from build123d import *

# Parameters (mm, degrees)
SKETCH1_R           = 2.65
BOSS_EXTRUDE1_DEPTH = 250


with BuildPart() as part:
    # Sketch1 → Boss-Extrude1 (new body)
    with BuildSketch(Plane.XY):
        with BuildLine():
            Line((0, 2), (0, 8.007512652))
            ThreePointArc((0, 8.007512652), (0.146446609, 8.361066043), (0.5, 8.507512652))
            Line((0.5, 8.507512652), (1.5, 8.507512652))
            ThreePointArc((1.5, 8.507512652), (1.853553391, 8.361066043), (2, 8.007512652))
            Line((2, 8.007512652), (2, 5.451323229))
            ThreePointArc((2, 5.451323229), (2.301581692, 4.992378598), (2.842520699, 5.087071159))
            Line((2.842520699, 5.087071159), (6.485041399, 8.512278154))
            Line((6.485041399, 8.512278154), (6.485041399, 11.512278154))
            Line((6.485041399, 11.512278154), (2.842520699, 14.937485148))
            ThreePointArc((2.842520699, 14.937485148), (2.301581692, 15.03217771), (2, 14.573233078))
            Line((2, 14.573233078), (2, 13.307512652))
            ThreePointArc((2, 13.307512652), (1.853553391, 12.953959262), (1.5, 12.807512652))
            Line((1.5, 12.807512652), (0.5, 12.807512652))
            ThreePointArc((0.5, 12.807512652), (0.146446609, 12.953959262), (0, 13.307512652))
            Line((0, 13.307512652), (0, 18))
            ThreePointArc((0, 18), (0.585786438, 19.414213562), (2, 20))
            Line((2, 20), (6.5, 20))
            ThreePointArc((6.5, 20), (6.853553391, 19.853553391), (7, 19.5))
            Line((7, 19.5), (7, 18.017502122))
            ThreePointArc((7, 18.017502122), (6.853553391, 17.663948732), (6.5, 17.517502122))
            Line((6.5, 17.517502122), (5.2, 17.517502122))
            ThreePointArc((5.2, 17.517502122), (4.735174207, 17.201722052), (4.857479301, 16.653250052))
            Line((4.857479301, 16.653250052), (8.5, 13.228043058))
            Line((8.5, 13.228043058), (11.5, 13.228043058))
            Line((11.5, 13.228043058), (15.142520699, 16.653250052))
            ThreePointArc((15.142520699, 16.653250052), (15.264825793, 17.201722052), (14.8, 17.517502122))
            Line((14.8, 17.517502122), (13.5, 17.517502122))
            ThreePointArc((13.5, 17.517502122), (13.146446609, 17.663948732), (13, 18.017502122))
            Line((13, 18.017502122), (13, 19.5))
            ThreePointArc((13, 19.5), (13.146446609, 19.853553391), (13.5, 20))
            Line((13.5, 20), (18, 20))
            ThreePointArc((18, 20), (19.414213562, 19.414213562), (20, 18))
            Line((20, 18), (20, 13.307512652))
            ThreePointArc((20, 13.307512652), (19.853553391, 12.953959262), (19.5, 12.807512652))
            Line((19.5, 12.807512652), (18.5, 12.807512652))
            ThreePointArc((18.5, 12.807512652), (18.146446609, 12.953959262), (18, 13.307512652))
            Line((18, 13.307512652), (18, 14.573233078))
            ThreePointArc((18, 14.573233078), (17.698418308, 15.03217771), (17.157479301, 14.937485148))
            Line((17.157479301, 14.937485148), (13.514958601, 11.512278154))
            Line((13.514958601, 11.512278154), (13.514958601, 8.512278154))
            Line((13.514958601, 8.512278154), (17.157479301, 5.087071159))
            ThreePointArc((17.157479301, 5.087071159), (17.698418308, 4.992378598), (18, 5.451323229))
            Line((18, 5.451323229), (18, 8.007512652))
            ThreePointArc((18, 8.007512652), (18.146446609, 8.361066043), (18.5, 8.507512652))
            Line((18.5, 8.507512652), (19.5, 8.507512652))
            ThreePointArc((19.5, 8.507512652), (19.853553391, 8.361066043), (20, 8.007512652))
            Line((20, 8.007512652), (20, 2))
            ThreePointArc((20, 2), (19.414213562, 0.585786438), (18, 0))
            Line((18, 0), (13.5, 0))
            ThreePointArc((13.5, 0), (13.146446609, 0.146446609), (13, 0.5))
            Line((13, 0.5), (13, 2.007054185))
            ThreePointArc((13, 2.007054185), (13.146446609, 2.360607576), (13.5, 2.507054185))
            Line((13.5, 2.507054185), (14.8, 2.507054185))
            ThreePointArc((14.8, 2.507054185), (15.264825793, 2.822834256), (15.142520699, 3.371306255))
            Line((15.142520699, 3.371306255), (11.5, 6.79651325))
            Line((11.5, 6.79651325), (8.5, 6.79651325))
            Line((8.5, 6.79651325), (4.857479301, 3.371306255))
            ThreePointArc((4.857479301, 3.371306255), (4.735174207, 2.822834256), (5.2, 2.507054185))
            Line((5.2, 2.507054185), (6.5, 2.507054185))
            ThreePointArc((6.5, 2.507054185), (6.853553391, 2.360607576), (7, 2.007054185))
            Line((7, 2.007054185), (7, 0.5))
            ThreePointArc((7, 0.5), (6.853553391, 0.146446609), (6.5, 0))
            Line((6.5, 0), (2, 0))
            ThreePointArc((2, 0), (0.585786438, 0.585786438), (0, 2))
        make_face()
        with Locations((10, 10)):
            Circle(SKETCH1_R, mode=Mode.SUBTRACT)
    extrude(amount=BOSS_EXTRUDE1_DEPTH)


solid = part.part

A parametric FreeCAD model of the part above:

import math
import FreeCAD as App
import Part
import Sketcher
from FreeCAD import Vector
Q = App.Units.Quantity

doc = App.newDocument("Part")
body = doc.addObject("PartDesign::Body", "Body")

sketch1 = doc.addObject("Sketcher::SketchObject", "Sketch")
body.addObject(sketch1)
sketch1.AttachmentSupport = (doc.XY_Plane, [""])
sketch1.MapMode = "FlatFace"
sketch1.addGeometry([
    Part.LineSegment(Vector(0, 8.007513, 0), Vector(0, 2, 0)),
    Part.ArcOfCircle(Part.Circle(Vector(2, 2, 0), Vector(0, 0, 1), 2), math.radians(-180), math.radians(-90)),
    Part.LineSegment(Vector(2, 0, 0), Vector(6.5, 0, 0)),
    Part.ArcOfCircle(Part.Circle(Vector(6.5, 0.5, 0), Vector(0, 0, 1), 0.5), math.radians(-90), math.radians(0)),
    Part.LineSegment(Vector(7, 0.5, 0), Vector(7, 2.007054, 0)),
    Part.ArcOfCircle(Part.Circle(Vector(6.5, 2.007054, 0), Vector(0, 0, 1), 0.5), math.radians(0), math.radians(90)),
    Part.LineSegment(Vector(6.5, 2.507054, 0), Vector(5.2, 2.507054, 0)),
    Part.ArcOfCircle(Part.Circle(Vector(5.2, 3.007054, 0), Vector(0, 0, 1), 0.5), math.radians(133.238863), math.radians(270)),
    Part.LineSegment(Vector(4.857479, 3.371306, 0), Vector(8.5, 6.796513, 0)),
    Part.LineSegment(Vector(8.5, 6.796513, 0), Vector(11.5, 6.796513, 0)),
    Part.LineSegment(Vector(11.5, 6.796513, 0), Vector(15.142521, 3.371306, 0)),
    Part.ArcOfCircle(Part.Circle(Vector(14.8, 3.007054, 0), Vector(0, 0, 1), 0.5), math.radians(-90), math.radians(46.761137)),
    Part.LineSegment(Vector(14.8, 2.507054, 0), Vector(13.5, 2.507054, 0)),
    Part.ArcOfCircle(Part.Circle(Vector(13.5, 2.007054, 0), Vector(0, 0, 1), 0.5), math.radians(90), math.radians(180)),
    Part.LineSegment(Vector(13, 2.007054, 0), Vector(13, 0.5, 0)),
    Part.ArcOfCircle(Part.Circle(Vector(13.5, 0.5, 0), Vector(0, 0, 1), 0.5), math.radians(180), math.radians(270)),
    Part.LineSegment(Vector(13.5, 0, 0), Vector(18, 0, 0)),
    Part.ArcOfCircle(Part.Circle(Vector(18, 2, 0), Vector(0, 0, 1), 2), math.radians(-90), math.radians(0)),
    Part.LineSegment(Vector(20, 2, 0), Vector(20, 8.007513, 0)),
    Part.ArcOfCircle(Part.Circle(Vector(19.5, 8.007513, 0), Vector(0, 0, 1), 0.5), math.radians(0), math.radians(90)),
    Part.LineSegment(Vector(19.5, 8.507513, 0), Vector(18.5, 8.507513, 0)),
    Part.ArcOfCircle(Part.Circle(Vector(18.5, 8.007513, 0), Vector(0, 0, 1), 0.5), math.radians(90), math.radians(180)),
    Part.LineSegment(Vector(18, 8.007513, 0), Vector(18, 5.451323, 0)),
    Part.ArcOfCircle(Part.Circle(Vector(17.5, 5.451323, 0), Vector(0, 0, 1), 0.5), math.radians(-133.238863), math.radians(0)),
    Part.LineSegment(Vector(17.157479, 5.087071, 0), Vector(13.514959, 8.512278, 0)),
    Part.LineSegment(Vector(13.514959, 8.512278, 0), Vector(13.514959, 11.512278, 0)),
    Part.LineSegment(Vector(13.514959, 11.512278, 0), Vector(17.157479, 14.937485, 0)),
    Part.ArcOfCircle(Part.Circle(Vector(17.5, 14.573233, 0), Vector(0, 0, 1), 0.5), math.radians(0), math.radians(133.238863)),
    Part.LineSegment(Vector(18, 14.573233, 0), Vector(18, 13.307513, 0)),
    Part.ArcOfCircle(Part.Circle(Vector(18.5, 13.307513, 0), Vector(0, 0, 1), 0.5), math.radians(180), math.radians(270)),
    Part.LineSegment(Vector(18.5, 12.807513, 0), Vector(19.5, 12.807513, 0)),
    Part.ArcOfCircle(Part.Circle(Vector(19.5, 13.307513, 0), Vector(0, 0, 1), 0.5), math.radians(-90), math.radians(0)),
    Part.LineSegment(Vector(20, 13.307513, 0), Vector(20, 18, 0)),
    Part.ArcOfCircle(Part.Circle(Vector(18, 18, 0), Vector(0, 0, 1), 2), math.radians(0), math.radians(90)),
    Part.LineSegment(Vector(18, 20, 0), Vector(13.5, 20, 0)),
    Part.ArcOfCircle(Part.Circle(Vector(13.5, 19.5, 0), Vector(0, 0, 1), 0.5), math.radians(90), math.radians(180)),
    Part.LineSegment(Vector(13, 19.5, 0), Vector(13, 18.017502, 0)),
    Part.ArcOfCircle(Part.Circle(Vector(13.5, 18.017502, 0), Vector(0, 0, 1), 0.5), math.radians(180), math.radians(270)),
    Part.LineSegment(Vector(13.5, 17.517502, 0), Vector(14.8, 17.517502, 0)),
    Part.ArcOfCircle(Part.Circle(Vector(14.8, 17.017502, 0), Vector(0, 0, 1), 0.5), math.radians(-46.761137), math.radians(90)),
    Part.LineSegment(Vector(15.142521, 16.65325, 0), Vector(11.5, 13.228043, 0)),
    Part.LineSegment(Vector(11.5, 13.228043, 0), Vector(8.5, 13.228043, 0)),
    Part.LineSegment(Vector(8.5, 13.228043, 0), Vector(4.857479, 16.65325, 0)),
    Part.ArcOfCircle(Part.Circle(Vector(5.2, 17.017502, 0), Vector(0, 0, 1), 0.5), math.radians(90), math.radians(226.761137)),
    Part.LineSegment(Vector(5.2, 17.517502, 0), Vector(6.5, 17.517502, 0)),
    Part.ArcOfCircle(Part.Circle(Vector(6.5, 18.017502, 0), Vector(0, 0, 1), 0.5), math.radians(-90), math.radians(0)),
    Part.LineSegment(Vector(7, 18.017502, 0), Vector(7, 19.5, 0)),
    Part.ArcOfCircle(Part.Circle(Vector(6.5, 19.5, 0), Vector(0, 0, 1), 0.5), math.radians(0), math.radians(90)),
    Part.LineSegment(Vector(6.5, 20, 0), Vector(2, 20, 0)),
    Part.ArcOfCircle(Part.Circle(Vector(2, 18, 0), Vector(0, 0, 1), 2), math.radians(90), math.radians(180)),
    Part.LineSegment(Vector(0, 18, 0), Vector(0, 13.307513, 0)),
    Part.ArcOfCircle(Part.Circle(Vector(0.5, 13.307513, 0), Vector(0, 0, 1), 0.5), math.radians(180), math.radians(270)),
    Part.LineSegment(Vector(0.5, 12.807513, 0), Vector(1.5, 12.807513, 0)),
    Part.ArcOfCircle(Part.Circle(Vector(1.5, 13.307513, 0), Vector(0, 0, 1), 0.5), math.radians(-90), math.radians(0)),
    Part.LineSegment(Vector(2, 13.307513, 0), Vector(2, 14.573233, 0)),
    Part.ArcOfCircle(Part.Circle(Vector(2.5, 14.573233, 0), Vector(0, 0, 1), 0.5), math.radians(46.761137), math.radians(180)),
    Part.LineSegment(Vector(2.842521, 14.937485, 0), Vector(6.485041, 11.512278, 0)),
    Part.LineSegment(Vector(6.485041, 11.512278, 0), Vector(6.485041, 8.512278, 0)),
    Part.LineSegment(Vector(6.485041, 8.512278, 0), Vector(2.842521, 5.087071, 0)),
    Part.ArcOfCircle(Part.Circle(Vector(2.5, 5.451323, 0), Vector(0, 0, 1), 0.5), math.radians(-180), math.radians(-46.761137)),
    Part.LineSegment(Vector(2, 5.451323, 0), Vector(2, 8.007513, 0)),
    Part.ArcOfCircle(Part.Circle(Vector(1.5, 8.007513, 0), Vector(0, 0, 1), 0.5), math.radians(0), math.radians(90)),
    Part.LineSegment(Vector(1.5, 8.507513, 0), Vector(0.5, 8.507513, 0)),
    Part.ArcOfCircle(Part.Circle(Vector(0.5, 8.007513, 0), Vector(0, 0, 1), 0.5), math.radians(90), math.radians(180)),
    Part.Circle(Vector(10, 10, 0), Vector(0, 0, 1), 2.65),
], False)
sketch1.addConstraint([
    Sketcher.Constraint("Tangent", 0, 2, 1, 1),
    Sketcher.Constraint("Tangent", 1, 2, 2, 1),
    Sketcher.Constraint("Tangent", 2, 2, 3, 1),
    Sketcher.Constraint("Tangent", 3, 2, 4, 1),
    Sketcher.Constraint("Tangent", 4, 2, 5, 1),
    Sketcher.Constraint("Tangent", 5, 2, 6, 1),
    Sketcher.Constraint("Tangent", 6, 2, 7, 2),
    Sketcher.Constraint("Tangent", 7, 1, 8, 1),
    Sketcher.Constraint("Coincident", 8, 2, 9, 1),
    Sketcher.Constraint("Coincident", 9, 2, 10, 1),
    Sketcher.Constraint("Tangent", 10, 2, 11, 2),
    Sketcher.Constraint("Tangent", 11, 1, 12, 1),
    Sketcher.Constraint("Tangent", 12, 2, 13, 1),
    Sketcher.Constraint("Tangent", 13, 2, 14, 1),
    Sketcher.Constraint("Tangent", 14, 2, 15, 1),
    Sketcher.Constraint("Tangent", 15, 2, 16, 1),
    Sketcher.Constraint("Tangent", 16, 2, 17, 1),
    Sketcher.Constraint("Tangent", 17, 2, 18, 1),
    Sketcher.Constraint("Tangent", 18, 2, 19, 1),
    Sketcher.Constraint("Tangent", 19, 2, 20, 1),
    Sketcher.Constraint("Tangent", 20, 2, 21, 1),
    Sketcher.Constraint("Tangent", 21, 2, 22, 1),
    Sketcher.Constraint("Tangent", 22, 2, 23, 2),
    Sketcher.Constraint("Tangent", 23, 1, 24, 1),
    Sketcher.Constraint("Coincident", 24, 2, 25, 1),
    Sketcher.Constraint("Coincident", 25, 2, 26, 1),
    Sketcher.Constraint("Tangent", 26, 2, 27, 2),
    Sketcher.Constraint("Tangent", 27, 1, 28, 1),
    Sketcher.Constraint("Tangent", 28, 2, 29, 1),
    Sketcher.Constraint("Tangent", 29, 2, 30, 1),
    Sketcher.Constraint("Tangent", 30, 2, 31, 1),
    Sketcher.Constraint("Tangent", 31, 2, 32, 1),
    Sketcher.Constraint("Tangent", 32, 2, 33, 1),
    Sketcher.Constraint("Tangent", 33, 2, 34, 1),
    Sketcher.Constraint("Tangent", 34, 2, 35, 1),
    Sketcher.Constraint("Tangent", 35, 2, 36, 1),
    Sketcher.Constraint("Tangent", 36, 2, 37, 1),
    Sketcher.Constraint("Tangent", 37, 2, 38, 1),
    Sketcher.Constraint("Tangent", 38, 2, 39, 2),
    Sketcher.Constraint("Tangent", 39, 1, 40, 1),
    Sketcher.Constraint("Coincident", 40, 2, 41, 1),
    Sketcher.Constraint("Coincident", 41, 2, 42, 1),
    Sketcher.Constraint("Tangent", 42, 2, 43, 2),
    Sketcher.Constraint("Tangent", 43, 1, 44, 1),
    Sketcher.Constraint("Tangent", 44, 2, 45, 1),
    Sketcher.Constraint("Tangent", 45, 2, 46, 1),
    Sketcher.Constraint("Tangent", 46, 2, 47, 1),
    Sketcher.Constraint("Tangent", 47, 2, 48, 1),
    Sketcher.Constraint("Tangent", 48, 2, 49, 1),
    Sketcher.Constraint("Tangent", 49, 2, 50, 1),
    Sketcher.Constraint("Tangent", 50, 2, 51, 1),
    Sketcher.Constraint("Tangent", 51, 2, 52, 1),
    Sketcher.Constraint("Tangent", 52, 2, 53, 1),
    Sketcher.Constraint("Tangent", 53, 2, 54, 1),
    Sketcher.Constraint("Tangent", 54, 2, 55, 2),
    Sketcher.Constraint("Tangent", 55, 1, 56, 1),
    Sketcher.Constraint("Coincident", 56, 2, 57, 1),
    Sketcher.Constraint("Coincident", 57, 2, 58, 1),
    Sketcher.Constraint("Tangent", 58, 2, 59, 2),
    Sketcher.Constraint("Tangent", 59, 1, 60, 1),
    Sketcher.Constraint("Tangent", 60, 2, 61, 1),
    Sketcher.Constraint("Tangent", 61, 2, 62, 1),
    Sketcher.Constraint("Tangent", 62, 2, 63, 1),
    Sketcher.Constraint("Tangent", 63, 2, 0, 1),
    Sketcher.Constraint("Vertical", 0),
    Sketcher.Constraint("Horizontal", 2),
    Sketcher.Constraint("Vertical", 4),
    Sketcher.Constraint("Horizontal", 6),
    Sketcher.Constraint("Horizontal", 9),
    Sketcher.Constraint("Horizontal", 12),
    Sketcher.Constraint("Vertical", 14),
    Sketcher.Constraint("Horizontal", 16),
    Sketcher.Constraint("Vertical", 18),
    Sketcher.Constraint("Horizontal", 20),
    Sketcher.Constraint("Vertical", 22),
    Sketcher.Constraint("Vertical", 25),
    Sketcher.Constraint("Vertical", 28),
    Sketcher.Constraint("Horizontal", 30),
    Sketcher.Constraint("Vertical", 32),
    Sketcher.Constraint("Horizontal", 34),
    Sketcher.Constraint("Vertical", 36),
    Sketcher.Constraint("Horizontal", 38),
    Sketcher.Constraint("Horizontal", 41),
    Sketcher.Constraint("Horizontal", 44),
    Sketcher.Constraint("Vertical", 46),
    Sketcher.Constraint("Horizontal", 48),
    Sketcher.Constraint("Vertical", 50),
    Sketcher.Constraint("Horizontal", 52),
    Sketcher.Constraint("Vertical", 54),
    Sketcher.Constraint("Vertical", 57),
    Sketcher.Constraint("Vertical", 60),
    Sketcher.Constraint("Horizontal", 62),
    Sketcher.Constraint("Equal", 3, 5),
    Sketcher.Constraint("Equal", 5, 7),
    Sketcher.Constraint("Equal", 7, 11),
    Sketcher.Constraint("Equal", 11, 13),
    Sketcher.Constraint("Equal", 13, 15),
    Sketcher.Constraint("Equal", 1, 17),
    Sketcher.Constraint("Equal", 15, 19),
    Sketcher.Constraint("Equal", 19, 21),
    Sketcher.Constraint("Equal", 21, 23),
    Sketcher.Constraint("Equal", 23, 27),
    Sketcher.Constraint("Equal", 27, 29),
    Sketcher.Constraint("Equal", 29, 31),
    Sketcher.Constraint("Equal", 17, 33),
    Sketcher.Constraint("Equal", 31, 35),
    Sketcher.Constraint("Equal", 35, 37),
    Sketcher.Constraint("Equal", 37, 39),
    Sketcher.Constraint("Equal", 39, 43),
    Sketcher.Constraint("Equal", 43, 45),
    Sketcher.Constraint("Equal", 45, 47),
    Sketcher.Constraint("Equal", 33, 49),
    Sketcher.Constraint("Equal", 47, 51),
    Sketcher.Constraint("Equal", 51, 53),
    Sketcher.Constraint("Equal", 53, 55),
    Sketcher.Constraint("Equal", 55, 59),
    Sketcher.Constraint("Equal", 59, 61),
    Sketcher.Constraint("Equal", 61, 63),
    Sketcher.Constraint("PointOnObject", 0, 2, -2),
    Sketcher.Constraint("PointOnObject", 1, 2, -1),
    Sketcher.Constraint("PointOnObject", 15, 2, -1),
    Sketcher.Constraint("PointOnObject", 49, 2, -2),
    Sketcher.Constraint("Parallel", 10, 24),
    Sketcher.Constraint("Parallel", 8, 26),
    Sketcher.Constraint("Parallel", 26, 40),
    Sketcher.Constraint("Parallel", 24, 42),
    Sketcher.Constraint("Parallel", 42, 56),
    Sketcher.Constraint("Parallel", 40, 58),
    Sketcher.Constraint("Horizontal", 7, 3, 11, 3),
    Sketcher.Constraint("Horizontal", 39, 3, 43, 3),
    Sketcher.Constraint("Horizontal", 35, 3, 47, 3),
    Sketcher.Constraint("Horizontal", 31, 3, 51, 3),
    Sketcher.Constraint("Horizontal", 27, 3, 55, 3),
    Sketcher.Constraint("Horizontal", 23, 3, 59, 3),
    Sketcher.Constraint("Horizontal", 21, 3, 61, 3),
    Sketcher.Constraint("Horizontal", 7, 1, 10, 2),
    Sketcher.Constraint("Horizontal", 25, 2, 56, 2),
    Sketcher.Constraint("Horizontal", 24, 2, 57, 2),
    Sketcher.Constraint("Vertical", 23, 3, 27, 3),
    Sketcher.Constraint("Vertical", 19, 3, 31, 3),
    Sketcher.Constraint("Vertical", 15, 3, 35, 3),
    Sketcher.Constraint("Vertical", 11, 3, 39, 3),
    Sketcher.Constraint("Vertical", 7, 3, 43, 3),
    Sketcher.Constraint("Vertical", 5, 3, 45, 3),
    Sketcher.Constraint("Vertical", 16, 2, 21, 2),
    Sketcher.Constraint("Vertical", 9, 2, 40, 2),
    Sketcher.Constraint("Vertical", 48, 2, 53, 2),
    Sketcher.Constraint("Equal", 6, 12),
    Sketcher.Constraint("Equal", 2, 16),
    Sketcher.Constraint("Equal", 41, 25),
    Sketcher.Constraint("Equal", 10, 24),
    Sketcher.Constraint("Radius", 1, Q("2 mm")),
    Sketcher.Constraint("Diameter", 64, Q("5.3 mm")),
    Sketcher.Constraint("Radius", 3, Q("0.5 mm")),
    Sketcher.Constraint("DistanceX", 9, 1, 9, 2, Q("3 mm")),
    Sketcher.Constraint("Distance", 8, Q("5 mm")),
    Sketcher.Constraint("DistanceX", 2, 1, 2, 2, Q("4.5 mm")),
    Sketcher.Constraint("DistanceX", 6, 2, 6, 1, Q("1.3 mm")),
    Sketcher.Constraint("DistanceX", -1, 1, 17, 3, Q("18 mm")),
    Sketcher.Constraint("DistanceY", -1, 1, 33, 3, Q("18 mm")),
    Sketcher.Constraint("DistanceX", -1, 1, 64, 3, Q("10 mm")),
    Sketcher.Constraint("DistanceY", -1, 1, 64, 3, Q("10 mm")),
    Sketcher.Constraint("DistanceY", 22, 2, 22, 1, Q("2.556189 mm")),
    Sketcher.Constraint("DistanceY", 28, 2, 28, 1, Q("1.26572 mm")),
    Sketcher.Constraint("DistanceY", 0, 2, 0, 1, Q("6.007513 mm")),
    Sketcher.Constraint("DistanceY", 4, 1, 4, 2, Q("1.507054 mm")),
    Sketcher.Constraint("DistanceY", 36, 2, 36, 1, Q("1.482498 mm")),
])
pad1 = doc.addObject("PartDesign::Pad", "Pad")
body.addObject(pad1)
pad1.Profile = sketch1
pad1.Length = 250

doc.recompute()
